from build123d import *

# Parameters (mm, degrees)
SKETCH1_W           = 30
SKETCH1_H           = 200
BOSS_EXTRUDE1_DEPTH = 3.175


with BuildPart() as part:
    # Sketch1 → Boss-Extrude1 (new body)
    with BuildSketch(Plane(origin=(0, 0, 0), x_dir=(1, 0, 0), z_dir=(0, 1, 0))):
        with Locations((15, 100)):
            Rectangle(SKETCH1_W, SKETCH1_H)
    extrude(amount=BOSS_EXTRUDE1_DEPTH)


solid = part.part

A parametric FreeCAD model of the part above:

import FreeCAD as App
import Part
import Sketcher

V = App.Vector


def add_polygon(sketch, points):
    """Adds a closed chain of lines whose ends are joined by coincident constraints."""
    first, n = sketch.GeometryCount, len(points)
    for a, b in zip(points, points[1:] + points[:1]):
        sketch.addGeometry(Part.LineSegment(App.Vector(*a, 0), App.Vector(*b, 0)), False)
    for i in range(n):
        sketch.addConstraint(Sketcher.Constraint("Coincident", first + i, 2, first + (i + 1) % n, 1))

doc = App.newDocument("Part")
body = doc.addObject("PartDesign::Body", "Body")

# Sketch on XZ plane
sketch1 = body.newObject("Sketcher::SketchObject", "Sketch")
sketch1.AttachmentSupport = (doc.getObject("XZ_Plane"), [""])
sketch1.MapMode = "FlatFace"
add_polygon(sketch1, [(0, -200), (0, 0), (30, 0), (30, -200)])  # lines 0-3
sketch1.addConstraint([
    Sketcher.Constraint("Vertical", 0),
    Sketcher.Constraint("Horizontal", 1),
    Sketcher.Constraint("Vertical", 2),
    Sketcher.Constraint("Horizontal", 3),
    Sketcher.Constraint("Coincident", 0, 2, -1, 1),
    Sketcher.Constraint("DistanceX", 1, 1, 1, 2, 30.0),
    Sketcher.Constraint("DistanceY", 0, 1, 0, 2, 200.0),
])
pad1 = body.newObject("PartDesign::Pad", "Pad")
pad1.Profile = sketch1
pad1.Length = 3.175
pad1.Reversed = True

doc.recompute()
